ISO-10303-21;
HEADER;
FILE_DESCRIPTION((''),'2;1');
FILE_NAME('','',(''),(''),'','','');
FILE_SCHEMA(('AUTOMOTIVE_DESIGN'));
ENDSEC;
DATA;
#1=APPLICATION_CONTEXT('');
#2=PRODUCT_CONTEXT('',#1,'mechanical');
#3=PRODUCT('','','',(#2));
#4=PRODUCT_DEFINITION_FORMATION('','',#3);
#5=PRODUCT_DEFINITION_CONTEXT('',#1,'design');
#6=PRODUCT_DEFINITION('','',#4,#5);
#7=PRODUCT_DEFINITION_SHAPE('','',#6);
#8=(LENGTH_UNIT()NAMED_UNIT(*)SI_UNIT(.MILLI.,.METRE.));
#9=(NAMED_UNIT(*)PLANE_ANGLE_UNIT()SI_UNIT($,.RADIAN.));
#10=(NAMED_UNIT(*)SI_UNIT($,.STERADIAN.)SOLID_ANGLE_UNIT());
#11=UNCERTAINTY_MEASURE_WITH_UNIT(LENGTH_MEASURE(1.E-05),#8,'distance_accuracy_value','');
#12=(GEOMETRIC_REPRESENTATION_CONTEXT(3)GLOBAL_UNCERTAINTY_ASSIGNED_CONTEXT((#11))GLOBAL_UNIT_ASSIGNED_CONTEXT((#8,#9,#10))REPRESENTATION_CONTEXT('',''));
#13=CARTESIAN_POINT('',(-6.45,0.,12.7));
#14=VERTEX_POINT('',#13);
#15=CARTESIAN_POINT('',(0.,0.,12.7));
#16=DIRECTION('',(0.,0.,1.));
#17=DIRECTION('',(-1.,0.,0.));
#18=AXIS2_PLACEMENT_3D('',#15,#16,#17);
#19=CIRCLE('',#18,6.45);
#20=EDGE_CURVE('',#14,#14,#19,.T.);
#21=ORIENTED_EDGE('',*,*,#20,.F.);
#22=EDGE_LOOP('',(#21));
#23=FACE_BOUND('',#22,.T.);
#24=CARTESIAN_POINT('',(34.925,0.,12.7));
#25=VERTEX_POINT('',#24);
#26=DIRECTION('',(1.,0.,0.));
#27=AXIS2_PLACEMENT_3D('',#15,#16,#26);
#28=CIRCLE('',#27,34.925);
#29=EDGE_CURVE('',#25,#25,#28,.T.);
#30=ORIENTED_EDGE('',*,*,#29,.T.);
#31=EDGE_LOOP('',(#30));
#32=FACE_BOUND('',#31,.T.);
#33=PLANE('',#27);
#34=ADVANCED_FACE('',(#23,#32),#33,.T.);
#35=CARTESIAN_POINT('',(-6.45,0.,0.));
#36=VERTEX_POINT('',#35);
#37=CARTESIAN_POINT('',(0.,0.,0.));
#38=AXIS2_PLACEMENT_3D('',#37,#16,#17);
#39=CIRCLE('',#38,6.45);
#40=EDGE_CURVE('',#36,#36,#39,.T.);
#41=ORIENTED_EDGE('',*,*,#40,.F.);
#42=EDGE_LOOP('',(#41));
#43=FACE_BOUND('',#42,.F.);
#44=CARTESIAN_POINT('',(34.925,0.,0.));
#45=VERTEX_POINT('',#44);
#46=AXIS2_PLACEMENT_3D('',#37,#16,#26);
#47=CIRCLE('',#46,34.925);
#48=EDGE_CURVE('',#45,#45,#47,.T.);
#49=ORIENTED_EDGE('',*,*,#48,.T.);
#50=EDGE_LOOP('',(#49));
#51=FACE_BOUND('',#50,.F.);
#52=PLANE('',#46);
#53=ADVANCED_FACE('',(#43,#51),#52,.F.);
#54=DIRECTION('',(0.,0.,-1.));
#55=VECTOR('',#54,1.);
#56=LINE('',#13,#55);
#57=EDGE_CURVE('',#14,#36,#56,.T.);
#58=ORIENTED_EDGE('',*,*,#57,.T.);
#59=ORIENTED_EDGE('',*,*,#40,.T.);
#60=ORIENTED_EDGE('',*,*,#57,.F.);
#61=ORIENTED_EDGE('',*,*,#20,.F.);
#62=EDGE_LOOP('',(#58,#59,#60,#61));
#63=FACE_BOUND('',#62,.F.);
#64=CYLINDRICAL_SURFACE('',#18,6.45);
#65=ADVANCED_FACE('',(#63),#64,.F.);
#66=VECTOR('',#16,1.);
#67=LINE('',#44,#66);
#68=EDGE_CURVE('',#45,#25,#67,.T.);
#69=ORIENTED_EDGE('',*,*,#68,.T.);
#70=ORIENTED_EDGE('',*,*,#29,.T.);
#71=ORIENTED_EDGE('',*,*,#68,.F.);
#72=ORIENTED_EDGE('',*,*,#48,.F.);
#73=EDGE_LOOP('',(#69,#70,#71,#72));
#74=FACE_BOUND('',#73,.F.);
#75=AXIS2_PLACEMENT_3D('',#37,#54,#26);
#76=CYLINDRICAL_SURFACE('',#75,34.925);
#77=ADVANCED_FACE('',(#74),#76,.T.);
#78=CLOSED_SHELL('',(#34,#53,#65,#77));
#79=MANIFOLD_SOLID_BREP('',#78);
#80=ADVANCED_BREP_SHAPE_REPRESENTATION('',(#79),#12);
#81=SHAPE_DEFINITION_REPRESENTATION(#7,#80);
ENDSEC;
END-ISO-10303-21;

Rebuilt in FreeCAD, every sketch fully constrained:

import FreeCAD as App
import Part
import Sketcher
from FreeCAD import Vector
Q = App.Units.Quantity

doc = App.newDocument("Part")
body = doc.addObject("PartDesign::Body", "Body")

sketch1 = body.newObject("Sketcher::SketchObject", "Sketch")
sketch1.AttachmentSupport = (doc.getObject("XY_Plane"), [""])
sketch1.MapMode = "FlatFace"
sketch1.addGeometry(Part.Circle(Vector(0, 0, 0), Vector(0, 0, 1), 34.925), False)
sketch1.addConstraint(Sketcher.Constraint("Coincident", 0, 3, -1, 1))
sketch1.addConstraint(Sketcher.Constraint("Diameter", 0, Q("69.85 mm")))
pad1 = body.newObject("PartDesign::Pad", "Pad")
pad1.Profile = sketch1
pad1.Length = 12.7

sketch2 = body.newObject("Sketcher::SketchObject", "Sketch001")
sketch2.AttachmentSupport = (doc.getObject("XY_Plane"), [""])
sketch2.MapMode = "FlatFace"
sketch2.AttachmentOffset = App.Placement(Vector(0, 0, 12.7), App.Rotation())
sketch2.addGeometry(Part.Circle(Vector(0, 0, 0), Vector(0, 0, 1), 6.45), False)
sketch2.addConstraint(Sketcher.Constraint("Coincident", 0, 3, -1, 1))
sketch2.addConstraint(Sketcher.Constraint("Diameter", 0, Q("12.9 mm")))
pocket1 = body.newObject("PartDesign::Pocket", "Pocket")
pocket1.Profile = sketch2
pocket1.Type = "ThroughAll"

doc.recompute()
